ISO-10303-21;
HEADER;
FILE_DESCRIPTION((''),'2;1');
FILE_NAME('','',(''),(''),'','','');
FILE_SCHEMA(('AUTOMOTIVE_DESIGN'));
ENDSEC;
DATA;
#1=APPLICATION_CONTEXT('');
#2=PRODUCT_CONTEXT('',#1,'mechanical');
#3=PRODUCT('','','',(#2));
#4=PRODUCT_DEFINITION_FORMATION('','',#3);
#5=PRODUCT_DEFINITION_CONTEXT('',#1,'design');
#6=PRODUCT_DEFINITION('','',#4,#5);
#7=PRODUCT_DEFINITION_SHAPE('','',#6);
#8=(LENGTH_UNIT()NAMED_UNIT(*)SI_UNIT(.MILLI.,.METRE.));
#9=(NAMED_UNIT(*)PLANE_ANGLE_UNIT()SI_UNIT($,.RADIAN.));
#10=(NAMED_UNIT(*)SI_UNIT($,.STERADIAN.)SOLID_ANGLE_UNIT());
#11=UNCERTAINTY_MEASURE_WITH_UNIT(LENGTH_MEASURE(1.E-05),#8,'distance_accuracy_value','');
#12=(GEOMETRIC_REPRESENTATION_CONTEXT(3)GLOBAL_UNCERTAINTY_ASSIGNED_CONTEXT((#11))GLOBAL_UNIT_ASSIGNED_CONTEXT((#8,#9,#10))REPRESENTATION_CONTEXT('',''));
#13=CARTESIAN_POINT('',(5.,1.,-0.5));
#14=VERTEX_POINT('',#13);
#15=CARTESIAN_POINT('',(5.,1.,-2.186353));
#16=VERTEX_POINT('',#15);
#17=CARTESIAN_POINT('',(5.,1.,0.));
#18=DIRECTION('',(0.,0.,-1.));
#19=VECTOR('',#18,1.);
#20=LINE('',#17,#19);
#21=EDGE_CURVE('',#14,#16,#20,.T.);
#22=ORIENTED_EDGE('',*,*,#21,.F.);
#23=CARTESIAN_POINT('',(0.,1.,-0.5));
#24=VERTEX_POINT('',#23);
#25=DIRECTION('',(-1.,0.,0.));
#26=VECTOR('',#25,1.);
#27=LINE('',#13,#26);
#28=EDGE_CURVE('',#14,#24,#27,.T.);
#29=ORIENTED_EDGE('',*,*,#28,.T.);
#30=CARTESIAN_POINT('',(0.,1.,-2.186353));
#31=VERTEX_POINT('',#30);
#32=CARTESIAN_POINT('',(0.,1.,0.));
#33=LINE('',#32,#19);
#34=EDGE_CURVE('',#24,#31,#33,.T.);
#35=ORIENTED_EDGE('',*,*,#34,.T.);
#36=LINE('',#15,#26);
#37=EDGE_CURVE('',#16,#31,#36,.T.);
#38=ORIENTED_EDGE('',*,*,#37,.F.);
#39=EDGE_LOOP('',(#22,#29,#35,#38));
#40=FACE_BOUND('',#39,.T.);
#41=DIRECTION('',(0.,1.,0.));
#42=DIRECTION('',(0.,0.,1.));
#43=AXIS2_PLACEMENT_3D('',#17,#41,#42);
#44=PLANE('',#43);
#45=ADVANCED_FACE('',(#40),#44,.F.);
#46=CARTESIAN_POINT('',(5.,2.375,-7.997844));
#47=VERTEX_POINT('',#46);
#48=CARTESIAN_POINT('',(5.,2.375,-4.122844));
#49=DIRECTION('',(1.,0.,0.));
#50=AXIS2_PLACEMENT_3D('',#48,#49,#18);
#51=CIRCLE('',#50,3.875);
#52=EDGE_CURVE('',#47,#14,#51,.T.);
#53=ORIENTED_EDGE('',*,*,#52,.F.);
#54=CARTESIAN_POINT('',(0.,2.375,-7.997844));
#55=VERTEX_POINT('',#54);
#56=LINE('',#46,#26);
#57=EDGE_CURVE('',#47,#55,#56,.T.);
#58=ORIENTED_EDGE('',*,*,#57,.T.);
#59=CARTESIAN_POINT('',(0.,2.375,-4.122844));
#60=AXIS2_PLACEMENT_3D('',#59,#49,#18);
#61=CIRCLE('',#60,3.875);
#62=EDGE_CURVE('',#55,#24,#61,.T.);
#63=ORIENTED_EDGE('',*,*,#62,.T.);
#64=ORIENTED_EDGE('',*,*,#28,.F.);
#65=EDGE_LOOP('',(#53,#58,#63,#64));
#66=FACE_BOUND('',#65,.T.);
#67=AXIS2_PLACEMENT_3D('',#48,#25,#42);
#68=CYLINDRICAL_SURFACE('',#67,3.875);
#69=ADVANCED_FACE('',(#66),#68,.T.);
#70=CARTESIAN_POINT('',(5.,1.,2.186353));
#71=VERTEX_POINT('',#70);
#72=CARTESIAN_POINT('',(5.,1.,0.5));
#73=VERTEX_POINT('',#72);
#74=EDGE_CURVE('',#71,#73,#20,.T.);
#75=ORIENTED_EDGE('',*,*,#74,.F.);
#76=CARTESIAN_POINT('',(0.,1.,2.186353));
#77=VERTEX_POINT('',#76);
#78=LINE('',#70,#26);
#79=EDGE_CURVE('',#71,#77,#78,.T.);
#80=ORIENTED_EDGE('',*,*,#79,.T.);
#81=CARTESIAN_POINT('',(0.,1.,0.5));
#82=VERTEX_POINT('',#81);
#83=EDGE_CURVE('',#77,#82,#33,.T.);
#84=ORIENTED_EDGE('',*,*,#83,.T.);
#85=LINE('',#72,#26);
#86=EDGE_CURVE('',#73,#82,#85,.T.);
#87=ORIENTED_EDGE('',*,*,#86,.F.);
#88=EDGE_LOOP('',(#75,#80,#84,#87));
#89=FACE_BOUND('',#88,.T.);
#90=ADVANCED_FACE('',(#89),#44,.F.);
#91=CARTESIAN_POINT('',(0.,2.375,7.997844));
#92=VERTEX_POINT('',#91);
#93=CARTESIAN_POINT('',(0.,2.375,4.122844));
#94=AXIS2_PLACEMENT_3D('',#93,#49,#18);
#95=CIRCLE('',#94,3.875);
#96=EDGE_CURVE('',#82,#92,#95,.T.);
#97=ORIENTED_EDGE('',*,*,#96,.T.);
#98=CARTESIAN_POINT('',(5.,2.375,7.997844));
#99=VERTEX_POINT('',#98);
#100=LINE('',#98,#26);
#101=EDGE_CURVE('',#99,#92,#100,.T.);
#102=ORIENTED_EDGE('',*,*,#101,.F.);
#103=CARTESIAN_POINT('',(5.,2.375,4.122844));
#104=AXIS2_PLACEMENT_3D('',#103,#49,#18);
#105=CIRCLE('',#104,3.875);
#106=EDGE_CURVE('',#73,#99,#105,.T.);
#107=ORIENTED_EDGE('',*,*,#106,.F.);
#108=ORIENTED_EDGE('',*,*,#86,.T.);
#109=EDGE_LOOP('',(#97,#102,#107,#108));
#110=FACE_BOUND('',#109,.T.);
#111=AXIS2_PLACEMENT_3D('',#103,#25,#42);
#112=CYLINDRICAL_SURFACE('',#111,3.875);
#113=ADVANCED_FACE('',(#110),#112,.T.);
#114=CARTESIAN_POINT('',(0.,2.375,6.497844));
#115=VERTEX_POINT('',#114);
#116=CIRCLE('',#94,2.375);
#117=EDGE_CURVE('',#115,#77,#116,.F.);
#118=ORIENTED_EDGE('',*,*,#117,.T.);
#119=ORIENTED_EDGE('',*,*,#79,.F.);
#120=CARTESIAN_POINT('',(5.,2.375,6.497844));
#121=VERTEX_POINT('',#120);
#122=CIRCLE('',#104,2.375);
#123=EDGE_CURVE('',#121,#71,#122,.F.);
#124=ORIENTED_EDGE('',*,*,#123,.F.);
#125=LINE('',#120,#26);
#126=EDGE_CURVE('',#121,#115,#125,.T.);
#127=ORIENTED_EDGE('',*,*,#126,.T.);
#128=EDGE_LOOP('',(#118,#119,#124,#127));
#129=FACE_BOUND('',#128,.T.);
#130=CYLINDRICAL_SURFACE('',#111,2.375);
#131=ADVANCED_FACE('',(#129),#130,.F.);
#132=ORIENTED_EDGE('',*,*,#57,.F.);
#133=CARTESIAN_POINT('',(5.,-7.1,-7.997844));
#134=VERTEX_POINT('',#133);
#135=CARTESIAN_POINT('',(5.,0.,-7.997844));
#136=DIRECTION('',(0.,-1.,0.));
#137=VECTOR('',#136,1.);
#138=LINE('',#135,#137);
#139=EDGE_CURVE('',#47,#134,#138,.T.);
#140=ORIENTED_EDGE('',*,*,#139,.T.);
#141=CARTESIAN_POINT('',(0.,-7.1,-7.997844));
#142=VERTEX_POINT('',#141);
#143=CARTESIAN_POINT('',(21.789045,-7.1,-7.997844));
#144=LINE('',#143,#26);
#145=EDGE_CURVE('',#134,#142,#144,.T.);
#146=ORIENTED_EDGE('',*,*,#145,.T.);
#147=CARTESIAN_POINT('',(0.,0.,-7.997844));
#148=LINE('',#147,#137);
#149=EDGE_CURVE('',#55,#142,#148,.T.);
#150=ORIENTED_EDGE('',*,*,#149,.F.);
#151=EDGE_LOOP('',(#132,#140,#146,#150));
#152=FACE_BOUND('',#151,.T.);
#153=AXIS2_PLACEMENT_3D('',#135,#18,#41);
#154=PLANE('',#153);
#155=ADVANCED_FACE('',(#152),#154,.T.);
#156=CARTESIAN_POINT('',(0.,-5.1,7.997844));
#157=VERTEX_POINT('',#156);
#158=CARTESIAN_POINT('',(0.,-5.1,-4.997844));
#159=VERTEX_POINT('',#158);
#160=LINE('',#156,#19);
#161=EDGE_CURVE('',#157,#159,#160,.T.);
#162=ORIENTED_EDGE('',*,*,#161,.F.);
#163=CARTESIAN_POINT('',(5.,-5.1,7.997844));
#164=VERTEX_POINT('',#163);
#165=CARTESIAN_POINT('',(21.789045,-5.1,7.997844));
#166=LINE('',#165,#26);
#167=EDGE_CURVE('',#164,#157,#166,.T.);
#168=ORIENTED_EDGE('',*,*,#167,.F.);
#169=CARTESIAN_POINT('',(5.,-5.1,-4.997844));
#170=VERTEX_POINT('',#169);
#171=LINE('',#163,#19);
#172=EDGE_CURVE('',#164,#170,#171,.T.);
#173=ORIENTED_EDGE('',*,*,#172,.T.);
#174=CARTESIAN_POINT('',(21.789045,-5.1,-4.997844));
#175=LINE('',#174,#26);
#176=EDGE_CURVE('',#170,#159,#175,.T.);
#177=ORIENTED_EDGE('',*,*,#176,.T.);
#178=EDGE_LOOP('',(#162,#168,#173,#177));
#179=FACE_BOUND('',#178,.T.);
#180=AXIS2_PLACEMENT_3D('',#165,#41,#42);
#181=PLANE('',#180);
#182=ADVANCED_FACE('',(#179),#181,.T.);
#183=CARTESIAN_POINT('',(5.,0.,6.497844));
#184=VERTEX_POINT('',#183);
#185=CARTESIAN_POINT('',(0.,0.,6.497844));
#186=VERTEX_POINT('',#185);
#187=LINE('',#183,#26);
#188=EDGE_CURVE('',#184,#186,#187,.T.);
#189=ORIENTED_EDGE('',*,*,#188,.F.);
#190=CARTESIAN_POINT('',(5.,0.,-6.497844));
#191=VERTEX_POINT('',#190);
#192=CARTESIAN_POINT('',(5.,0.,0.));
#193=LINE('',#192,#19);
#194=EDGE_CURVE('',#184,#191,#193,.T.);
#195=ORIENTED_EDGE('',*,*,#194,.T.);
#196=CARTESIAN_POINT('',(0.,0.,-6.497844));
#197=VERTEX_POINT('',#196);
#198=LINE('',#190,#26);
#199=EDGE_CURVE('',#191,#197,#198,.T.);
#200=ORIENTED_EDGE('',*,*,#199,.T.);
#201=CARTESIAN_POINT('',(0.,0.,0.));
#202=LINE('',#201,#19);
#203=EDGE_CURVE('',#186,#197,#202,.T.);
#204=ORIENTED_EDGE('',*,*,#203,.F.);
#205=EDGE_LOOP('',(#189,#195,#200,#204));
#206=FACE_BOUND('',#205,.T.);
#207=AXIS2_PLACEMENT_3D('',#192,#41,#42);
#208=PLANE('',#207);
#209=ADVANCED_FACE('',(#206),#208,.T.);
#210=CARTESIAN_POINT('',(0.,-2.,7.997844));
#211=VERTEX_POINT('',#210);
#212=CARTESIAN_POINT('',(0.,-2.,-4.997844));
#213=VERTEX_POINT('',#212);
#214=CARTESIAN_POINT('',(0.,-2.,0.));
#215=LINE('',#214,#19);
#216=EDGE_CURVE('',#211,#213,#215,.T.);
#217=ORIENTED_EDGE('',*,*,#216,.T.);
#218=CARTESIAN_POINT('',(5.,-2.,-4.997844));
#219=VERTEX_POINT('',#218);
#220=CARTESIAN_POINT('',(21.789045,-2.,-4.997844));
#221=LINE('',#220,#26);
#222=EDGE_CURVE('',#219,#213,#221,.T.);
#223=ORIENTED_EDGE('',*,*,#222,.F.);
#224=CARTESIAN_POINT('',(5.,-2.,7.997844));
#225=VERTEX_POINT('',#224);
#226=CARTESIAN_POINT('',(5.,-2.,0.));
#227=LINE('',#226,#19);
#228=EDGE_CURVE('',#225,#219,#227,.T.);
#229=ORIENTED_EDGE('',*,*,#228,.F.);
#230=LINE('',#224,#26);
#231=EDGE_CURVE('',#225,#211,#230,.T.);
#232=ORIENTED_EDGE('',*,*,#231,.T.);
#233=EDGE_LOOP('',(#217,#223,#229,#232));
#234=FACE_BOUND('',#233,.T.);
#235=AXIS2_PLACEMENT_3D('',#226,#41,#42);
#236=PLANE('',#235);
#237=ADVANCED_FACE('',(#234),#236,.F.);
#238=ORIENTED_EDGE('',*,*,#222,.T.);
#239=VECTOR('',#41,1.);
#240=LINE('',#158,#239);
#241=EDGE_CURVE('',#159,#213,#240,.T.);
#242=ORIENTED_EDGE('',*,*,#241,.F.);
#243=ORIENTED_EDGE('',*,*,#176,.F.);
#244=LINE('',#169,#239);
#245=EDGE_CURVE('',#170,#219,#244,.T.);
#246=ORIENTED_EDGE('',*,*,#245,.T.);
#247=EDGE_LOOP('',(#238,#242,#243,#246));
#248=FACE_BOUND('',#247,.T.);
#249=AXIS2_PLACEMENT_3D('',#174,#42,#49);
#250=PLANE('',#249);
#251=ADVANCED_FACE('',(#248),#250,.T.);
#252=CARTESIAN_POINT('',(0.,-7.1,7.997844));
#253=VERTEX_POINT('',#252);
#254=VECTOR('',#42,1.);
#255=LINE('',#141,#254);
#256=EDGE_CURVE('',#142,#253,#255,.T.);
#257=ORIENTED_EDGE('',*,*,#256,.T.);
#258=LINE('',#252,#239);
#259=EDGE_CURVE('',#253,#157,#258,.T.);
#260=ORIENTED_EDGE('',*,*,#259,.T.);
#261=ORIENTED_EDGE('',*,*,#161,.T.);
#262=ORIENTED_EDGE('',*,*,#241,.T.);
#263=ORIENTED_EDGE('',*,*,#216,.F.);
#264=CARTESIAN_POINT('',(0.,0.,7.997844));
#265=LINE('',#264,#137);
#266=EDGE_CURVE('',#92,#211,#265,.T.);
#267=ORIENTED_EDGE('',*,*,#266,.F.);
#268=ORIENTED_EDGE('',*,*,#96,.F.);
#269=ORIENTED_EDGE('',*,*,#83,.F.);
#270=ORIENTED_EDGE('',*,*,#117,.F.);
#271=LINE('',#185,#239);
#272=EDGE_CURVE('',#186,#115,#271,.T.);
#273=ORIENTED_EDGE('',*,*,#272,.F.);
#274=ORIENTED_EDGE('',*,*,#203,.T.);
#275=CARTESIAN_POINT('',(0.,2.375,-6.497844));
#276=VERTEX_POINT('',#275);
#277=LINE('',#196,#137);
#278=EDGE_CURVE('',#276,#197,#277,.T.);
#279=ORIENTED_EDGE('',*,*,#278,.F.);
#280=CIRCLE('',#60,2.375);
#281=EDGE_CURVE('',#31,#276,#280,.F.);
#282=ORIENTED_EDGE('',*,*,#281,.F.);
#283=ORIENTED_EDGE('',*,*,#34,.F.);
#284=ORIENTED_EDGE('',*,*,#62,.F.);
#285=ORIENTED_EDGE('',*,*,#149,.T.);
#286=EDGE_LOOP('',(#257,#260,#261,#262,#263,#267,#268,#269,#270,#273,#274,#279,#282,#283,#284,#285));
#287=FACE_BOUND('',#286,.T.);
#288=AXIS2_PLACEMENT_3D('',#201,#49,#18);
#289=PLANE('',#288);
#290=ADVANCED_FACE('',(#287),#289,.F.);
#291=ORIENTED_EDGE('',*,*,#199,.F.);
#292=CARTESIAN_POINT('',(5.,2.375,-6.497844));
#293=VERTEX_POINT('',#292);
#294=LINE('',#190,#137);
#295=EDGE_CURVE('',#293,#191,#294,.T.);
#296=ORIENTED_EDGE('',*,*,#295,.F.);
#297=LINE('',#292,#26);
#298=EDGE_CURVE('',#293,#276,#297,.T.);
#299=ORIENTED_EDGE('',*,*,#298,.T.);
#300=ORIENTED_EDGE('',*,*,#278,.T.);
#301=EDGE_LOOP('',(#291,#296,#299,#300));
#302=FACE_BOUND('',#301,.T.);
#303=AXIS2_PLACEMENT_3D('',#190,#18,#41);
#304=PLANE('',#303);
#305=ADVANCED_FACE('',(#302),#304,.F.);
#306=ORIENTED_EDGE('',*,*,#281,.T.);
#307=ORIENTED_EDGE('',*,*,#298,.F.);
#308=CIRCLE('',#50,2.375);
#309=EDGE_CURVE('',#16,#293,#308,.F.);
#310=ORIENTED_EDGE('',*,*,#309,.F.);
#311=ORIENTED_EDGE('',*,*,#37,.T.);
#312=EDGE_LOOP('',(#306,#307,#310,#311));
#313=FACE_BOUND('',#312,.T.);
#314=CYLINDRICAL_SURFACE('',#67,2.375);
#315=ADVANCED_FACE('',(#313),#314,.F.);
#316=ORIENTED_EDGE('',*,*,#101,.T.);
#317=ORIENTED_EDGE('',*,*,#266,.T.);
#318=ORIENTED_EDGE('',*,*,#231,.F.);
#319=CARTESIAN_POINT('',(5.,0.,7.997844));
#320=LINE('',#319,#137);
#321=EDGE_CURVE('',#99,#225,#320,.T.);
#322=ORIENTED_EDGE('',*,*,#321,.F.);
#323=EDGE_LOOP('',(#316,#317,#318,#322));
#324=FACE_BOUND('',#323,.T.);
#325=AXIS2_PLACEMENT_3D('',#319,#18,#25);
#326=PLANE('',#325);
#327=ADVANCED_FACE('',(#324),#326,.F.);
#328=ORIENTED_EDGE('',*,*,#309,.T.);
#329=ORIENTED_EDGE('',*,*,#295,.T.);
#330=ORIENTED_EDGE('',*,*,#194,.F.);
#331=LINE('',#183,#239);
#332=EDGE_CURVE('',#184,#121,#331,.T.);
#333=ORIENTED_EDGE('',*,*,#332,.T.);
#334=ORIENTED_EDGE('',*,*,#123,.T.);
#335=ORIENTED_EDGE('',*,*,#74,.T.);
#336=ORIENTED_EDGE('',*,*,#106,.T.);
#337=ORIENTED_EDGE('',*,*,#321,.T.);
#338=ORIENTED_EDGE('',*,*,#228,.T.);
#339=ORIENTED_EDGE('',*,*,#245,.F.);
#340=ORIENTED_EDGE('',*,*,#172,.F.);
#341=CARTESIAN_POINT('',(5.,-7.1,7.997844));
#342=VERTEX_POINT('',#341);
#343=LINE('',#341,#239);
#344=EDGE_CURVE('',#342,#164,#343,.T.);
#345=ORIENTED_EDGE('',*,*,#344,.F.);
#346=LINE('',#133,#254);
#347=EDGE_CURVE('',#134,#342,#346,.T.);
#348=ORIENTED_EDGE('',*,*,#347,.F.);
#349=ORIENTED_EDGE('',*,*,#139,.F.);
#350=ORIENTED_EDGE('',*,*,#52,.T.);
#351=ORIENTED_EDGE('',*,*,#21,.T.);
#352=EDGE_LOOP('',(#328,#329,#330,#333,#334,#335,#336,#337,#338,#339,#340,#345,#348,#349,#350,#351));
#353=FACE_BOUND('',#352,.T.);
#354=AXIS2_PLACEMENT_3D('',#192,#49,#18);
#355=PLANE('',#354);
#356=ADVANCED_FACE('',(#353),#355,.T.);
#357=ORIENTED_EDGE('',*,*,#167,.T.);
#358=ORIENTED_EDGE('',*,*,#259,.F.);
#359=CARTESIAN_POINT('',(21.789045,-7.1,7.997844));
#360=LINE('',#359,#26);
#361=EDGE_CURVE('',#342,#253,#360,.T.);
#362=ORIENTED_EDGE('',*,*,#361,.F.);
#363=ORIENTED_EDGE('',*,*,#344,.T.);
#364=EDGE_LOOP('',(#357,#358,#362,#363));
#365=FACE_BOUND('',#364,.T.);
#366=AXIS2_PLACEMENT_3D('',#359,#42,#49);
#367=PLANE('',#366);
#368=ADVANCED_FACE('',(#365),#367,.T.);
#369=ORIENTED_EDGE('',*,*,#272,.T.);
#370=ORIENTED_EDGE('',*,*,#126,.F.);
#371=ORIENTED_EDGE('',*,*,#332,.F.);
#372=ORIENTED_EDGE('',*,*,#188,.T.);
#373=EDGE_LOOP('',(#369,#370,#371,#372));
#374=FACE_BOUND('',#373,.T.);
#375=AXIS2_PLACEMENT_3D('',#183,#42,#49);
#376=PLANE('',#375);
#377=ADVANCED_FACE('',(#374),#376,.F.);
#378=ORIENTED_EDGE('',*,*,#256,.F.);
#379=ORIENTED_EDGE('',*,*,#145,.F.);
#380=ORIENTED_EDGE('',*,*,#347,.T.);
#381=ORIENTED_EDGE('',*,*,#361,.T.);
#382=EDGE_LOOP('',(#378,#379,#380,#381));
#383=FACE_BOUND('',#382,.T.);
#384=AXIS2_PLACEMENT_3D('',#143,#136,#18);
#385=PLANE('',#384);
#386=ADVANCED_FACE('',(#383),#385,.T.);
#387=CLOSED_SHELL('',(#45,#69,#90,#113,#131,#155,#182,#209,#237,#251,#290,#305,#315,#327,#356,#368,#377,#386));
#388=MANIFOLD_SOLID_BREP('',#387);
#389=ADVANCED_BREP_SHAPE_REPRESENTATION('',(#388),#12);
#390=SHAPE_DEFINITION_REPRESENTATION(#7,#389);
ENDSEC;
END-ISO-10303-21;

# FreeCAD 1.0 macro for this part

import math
import FreeCAD as App
import Part
import Sketcher

doc = App.newDocument("Part")
body = doc.addObject("PartDesign::Body", "Body")

# Sketch on YZ plane
sketch1 = body.newObject("Sketcher::SketchObject", "Sketch")
sketch1.AttachmentSupport = (doc.getObject("YZ_Plane"), [""])
sketch1.MapMode = "FlatFace"
sketch1.addGeometry(Part.LineSegment(App.Vector(2.375, 7.997844, 0), App.Vector(-2, 7.997844, 0)), False)
sketch1.addGeometry(Part.LineSegment(App.Vector(-2, 7.997844, 0), App.Vector(-2, -7.997844, 0)), False)
sketch1.addGeometry(Part.LineSegment(App.Vector(-2, -7.997844, 0), App.Vector(2.375, -7.997844, 0)), False)
sketch1.addGeometry(Part.ArcOfCircle(Part.Circle(App.Vector(2.375, -4.122844, 0), App.Vector(0, 0, 1), 3.875), math.radians(-90), math.radians(110.78356)), False)
sketch1.addGeometry(Part.LineSegment(App.Vector(1, -0.5, 0), App.Vector(1, -2.186353, 0)), False)
sketch1.addGeometry(Part.ArcOfCircle(Part.Circle(App.Vector(2.375, -4.122844, 0), App.Vector(0, 0, 1), 2.375), math.radians(-90), math.radians(125.37654)), False)
sketch1.addGeometry(Part.LineSegment(App.Vector(2.375, -6.497844, 0), App.Vector(0, -6.497844, 0)), False)
sketch1.addGeometry(Part.LineSegment(App.Vector(0, -6.497844, 0), App.Vector(0, 6.497844, 0)), False)
sketch1.addGeometry(Part.LineSegment(App.Vector(0, 6.497844, 0), App.Vector(2.375, 6.497844, 0)), False)
sketch1.addGeometry(Part.ArcOfCircle(Part.Circle(App.Vector(2.375, 4.122844, 0), App.Vector(0, 0, 1), 2.375), math.radians(-125.37654), math.radians(90)), False)
sketch1.addGeometry(Part.LineSegment(App.Vector(1, 2.186353, 0), App.Vector(1, 0.5, 0)), False)
sketch1.addGeometry(Part.ArcOfCircle(Part.Circle(App.Vector(2.375, 4.122844, 0), App.Vector(0, 0, 1), 3.875), math.radians(-110.78356), math.radians(90)), False)
sketch1.addConstraint(Sketcher.Constraint("Coincident", 0, 2, 1, 1))
sketch1.addConstraint(Sketcher.Constraint("Coincident", 1, 2, 2, 1))
sketch1.addConstraint(Sketcher.Constraint("Tangent", 2, 2, 3, 1))
sketch1.addConstraint(Sketcher.Constraint("Coincident", 3, 2, 4, 1))
sketch1.addConstraint(Sketcher.Constraint("Coincident", 4, 2, 5, 2))
sketch1.addConstraint(Sketcher.Constraint("Tangent", 5, 1, 6, 1))
sketch1.addConstraint(Sketcher.Constraint("Coincident", 6, 2, 7, 1))
sketch1.addConstraint(Sketcher.Constraint("Coincident", 7, 2, 8, 1))
sketch1.addConstraint(Sketcher.Constraint("Tangent", 8, 2, 9, 2))
sketch1.addConstraint(Sketcher.Constraint("Coincident", 9, 1, 10, 1))
sketch1.addConstraint(Sketcher.Constraint("Coincident", 10, 2, 11, 1))
sketch1.addConstraint(Sketcher.Constraint("Tangent", 11, 2, 0, 1))
sketch1.addConstraint(Sketcher.Constraint("Horizontal", 0))
sketch1.addConstraint(Sketcher.Constraint("Vertical", 1))
sketch1.addConstraint(Sketcher.Constraint("Horizontal", 2))
sketch1.addConstraint(Sketcher.Constraint("Vertical", 4))
sketch1.addConstraint(Sketcher.Constraint("Horizontal", 6))
sketch1.addConstraint(Sketcher.Constraint("Vertical", 7))
sketch1.addConstraint(Sketcher.Constraint("Horizontal", 8))
sketch1.addConstraint(Sketcher.Constraint("Vertical", 10))
sketch1.addConstraint(Sketcher.Constraint("Coincident", 5, 3, 3, 3))
sketch1.addConstraint(Sketcher.Constraint("Coincident", 11, 3, 9, 3))
sketch1.addConstraint(Sketcher.Constraint("Equal", 5, 9))
sketch1.addConstraint(Sketcher.Constraint("Equal", 3, 11))
sketch1.addConstraint(Sketcher.Constraint("Symmetric", 6, 2, 7, 2, -1, 1))
sketch1.addConstraint(Sketcher.Constraint("Symmetric", 4, 2, 9, 1, -1))
sketch1.addConstraint(Sketcher.Constraint("DistanceX", 0, 2, -1, 1, 2.0))
sketch1.addConstraint(Sketcher.Constraint("DistanceX", -1, 1, 3, 2, 1.0))
sketch1.addConstraint(Sketcher.Constraint("Radius", 3, 3.875))
sketch1.addConstraint(Sketcher.Constraint("Radius", 5, 2.375))
sketch1.addConstraint(Sketcher.Constraint("DistanceY", 3, 2, 10, 2, 1.0))
sketch1.addConstraint(Sketcher.Constraint("DistanceX", 0, 2, 0, 1, 4.375))
pad1 = body.newObject("PartDesign::Pad", "Pad")
pad1.Profile = sketch1
pad1.Length = 5

# Sketch on YZ plane
sketch2 = body.newObject("Sketcher::SketchObject", "Sketch001")
sketch2.AttachmentSupport = (doc.getObject("YZ_Plane"), [""])
sketch2.MapMode = "FlatFace"
sketch2.addGeometry(Part.LineSegment(App.Vector(-2, -7.997844, 0), App.Vector(-7.1, -7.997844, 0)), False)
sketch2.addGeometry(Part.LineSegment(App.Vector(-7.1, -7.997844, 0), App.Vector(-7.1, 7.997844, 0)), False)
sketch2.addGeometry(Part.LineSegment(App.Vector(-7.1, 7.997844, 0), App.Vector(-5.1, 7.997844, 0)), False)
sketch2.addGeometry(Part.LineSegment(App.Vector(-5.1, 7.997844, 0), App.Vector(-5.1, -4.997844, 0)), False)
sketch2.addGeometry(Part.LineSegment(App.Vector(-5.1, -4.997844, 0), App.Vector(-2, -4.997844, 0)), False)
sketch2.addGeometry(Part.LineSegment(App.Vector(-2, -4.997844, 0), App.Vector(-2, -7.997844, 0)), False)
sketch2.addConstraint(Sketcher.Constraint("Coincident", 0, 2, 1, 1))
sketch2.addConstraint(Sketcher.Constraint("Coincident", 1, 2, 2, 1))
sketch2.addConstraint(Sketcher.Constraint("Coincident", 2, 2, 3, 1))
sketch2.addConstraint(Sketcher.Constraint("Coincident", 3, 2, 4, 1))
sketch2.addConstraint(Sketcher.Constraint("Coincident", 4, 2, 5, 1))
sketch2.addConstraint(Sketcher.Constraint("Coincident", 5, 2, 0, 1))
sketch2.addConstraint(Sketcher.Constraint("Horizontal", 0))
sketch2.addConstraint(Sketcher.Constraint("Vertical", 1))
sketch2.addConstraint(Sketcher.Constraint("Horizontal", 2))
sketch2.addConstraint(Sketcher.Constraint("Vertical", 3))
sketch2.addConstraint(Sketcher.Constraint("Horizontal", 4))
sketch2.addConstraint(Sketcher.Constraint("Vertical", 5))
sketch2.addConstraint(Sketcher.Constraint("DistanceX", 2, 1, 2, 2, 2.0))
sketch2.addConstraint(Sketcher.Constraint("DistanceY", 5, 2, 5, 1, 3.0))
sketch2.addConstraint(Sketcher.Constraint("DistanceX", 0, 2, 0, 1, 5.1))
sketch2.addConstraint(Sketcher.Constraint("DistanceX", 4, 2, -1, 1, 2.0))
sketch2.addConstraint(Sketcher.Constraint("DistanceY", 1, 1, 1, 2, 15.995688))
sketch2.addConstraint(Sketcher.Constraint("DistanceY", 0, 2, -1, 1, 7.997844))
pad2 = body.newObject("PartDesign::Pad", "Pad001")
pad2.Profile = sketch2
pad2.Length = 5

doc.recompute()
